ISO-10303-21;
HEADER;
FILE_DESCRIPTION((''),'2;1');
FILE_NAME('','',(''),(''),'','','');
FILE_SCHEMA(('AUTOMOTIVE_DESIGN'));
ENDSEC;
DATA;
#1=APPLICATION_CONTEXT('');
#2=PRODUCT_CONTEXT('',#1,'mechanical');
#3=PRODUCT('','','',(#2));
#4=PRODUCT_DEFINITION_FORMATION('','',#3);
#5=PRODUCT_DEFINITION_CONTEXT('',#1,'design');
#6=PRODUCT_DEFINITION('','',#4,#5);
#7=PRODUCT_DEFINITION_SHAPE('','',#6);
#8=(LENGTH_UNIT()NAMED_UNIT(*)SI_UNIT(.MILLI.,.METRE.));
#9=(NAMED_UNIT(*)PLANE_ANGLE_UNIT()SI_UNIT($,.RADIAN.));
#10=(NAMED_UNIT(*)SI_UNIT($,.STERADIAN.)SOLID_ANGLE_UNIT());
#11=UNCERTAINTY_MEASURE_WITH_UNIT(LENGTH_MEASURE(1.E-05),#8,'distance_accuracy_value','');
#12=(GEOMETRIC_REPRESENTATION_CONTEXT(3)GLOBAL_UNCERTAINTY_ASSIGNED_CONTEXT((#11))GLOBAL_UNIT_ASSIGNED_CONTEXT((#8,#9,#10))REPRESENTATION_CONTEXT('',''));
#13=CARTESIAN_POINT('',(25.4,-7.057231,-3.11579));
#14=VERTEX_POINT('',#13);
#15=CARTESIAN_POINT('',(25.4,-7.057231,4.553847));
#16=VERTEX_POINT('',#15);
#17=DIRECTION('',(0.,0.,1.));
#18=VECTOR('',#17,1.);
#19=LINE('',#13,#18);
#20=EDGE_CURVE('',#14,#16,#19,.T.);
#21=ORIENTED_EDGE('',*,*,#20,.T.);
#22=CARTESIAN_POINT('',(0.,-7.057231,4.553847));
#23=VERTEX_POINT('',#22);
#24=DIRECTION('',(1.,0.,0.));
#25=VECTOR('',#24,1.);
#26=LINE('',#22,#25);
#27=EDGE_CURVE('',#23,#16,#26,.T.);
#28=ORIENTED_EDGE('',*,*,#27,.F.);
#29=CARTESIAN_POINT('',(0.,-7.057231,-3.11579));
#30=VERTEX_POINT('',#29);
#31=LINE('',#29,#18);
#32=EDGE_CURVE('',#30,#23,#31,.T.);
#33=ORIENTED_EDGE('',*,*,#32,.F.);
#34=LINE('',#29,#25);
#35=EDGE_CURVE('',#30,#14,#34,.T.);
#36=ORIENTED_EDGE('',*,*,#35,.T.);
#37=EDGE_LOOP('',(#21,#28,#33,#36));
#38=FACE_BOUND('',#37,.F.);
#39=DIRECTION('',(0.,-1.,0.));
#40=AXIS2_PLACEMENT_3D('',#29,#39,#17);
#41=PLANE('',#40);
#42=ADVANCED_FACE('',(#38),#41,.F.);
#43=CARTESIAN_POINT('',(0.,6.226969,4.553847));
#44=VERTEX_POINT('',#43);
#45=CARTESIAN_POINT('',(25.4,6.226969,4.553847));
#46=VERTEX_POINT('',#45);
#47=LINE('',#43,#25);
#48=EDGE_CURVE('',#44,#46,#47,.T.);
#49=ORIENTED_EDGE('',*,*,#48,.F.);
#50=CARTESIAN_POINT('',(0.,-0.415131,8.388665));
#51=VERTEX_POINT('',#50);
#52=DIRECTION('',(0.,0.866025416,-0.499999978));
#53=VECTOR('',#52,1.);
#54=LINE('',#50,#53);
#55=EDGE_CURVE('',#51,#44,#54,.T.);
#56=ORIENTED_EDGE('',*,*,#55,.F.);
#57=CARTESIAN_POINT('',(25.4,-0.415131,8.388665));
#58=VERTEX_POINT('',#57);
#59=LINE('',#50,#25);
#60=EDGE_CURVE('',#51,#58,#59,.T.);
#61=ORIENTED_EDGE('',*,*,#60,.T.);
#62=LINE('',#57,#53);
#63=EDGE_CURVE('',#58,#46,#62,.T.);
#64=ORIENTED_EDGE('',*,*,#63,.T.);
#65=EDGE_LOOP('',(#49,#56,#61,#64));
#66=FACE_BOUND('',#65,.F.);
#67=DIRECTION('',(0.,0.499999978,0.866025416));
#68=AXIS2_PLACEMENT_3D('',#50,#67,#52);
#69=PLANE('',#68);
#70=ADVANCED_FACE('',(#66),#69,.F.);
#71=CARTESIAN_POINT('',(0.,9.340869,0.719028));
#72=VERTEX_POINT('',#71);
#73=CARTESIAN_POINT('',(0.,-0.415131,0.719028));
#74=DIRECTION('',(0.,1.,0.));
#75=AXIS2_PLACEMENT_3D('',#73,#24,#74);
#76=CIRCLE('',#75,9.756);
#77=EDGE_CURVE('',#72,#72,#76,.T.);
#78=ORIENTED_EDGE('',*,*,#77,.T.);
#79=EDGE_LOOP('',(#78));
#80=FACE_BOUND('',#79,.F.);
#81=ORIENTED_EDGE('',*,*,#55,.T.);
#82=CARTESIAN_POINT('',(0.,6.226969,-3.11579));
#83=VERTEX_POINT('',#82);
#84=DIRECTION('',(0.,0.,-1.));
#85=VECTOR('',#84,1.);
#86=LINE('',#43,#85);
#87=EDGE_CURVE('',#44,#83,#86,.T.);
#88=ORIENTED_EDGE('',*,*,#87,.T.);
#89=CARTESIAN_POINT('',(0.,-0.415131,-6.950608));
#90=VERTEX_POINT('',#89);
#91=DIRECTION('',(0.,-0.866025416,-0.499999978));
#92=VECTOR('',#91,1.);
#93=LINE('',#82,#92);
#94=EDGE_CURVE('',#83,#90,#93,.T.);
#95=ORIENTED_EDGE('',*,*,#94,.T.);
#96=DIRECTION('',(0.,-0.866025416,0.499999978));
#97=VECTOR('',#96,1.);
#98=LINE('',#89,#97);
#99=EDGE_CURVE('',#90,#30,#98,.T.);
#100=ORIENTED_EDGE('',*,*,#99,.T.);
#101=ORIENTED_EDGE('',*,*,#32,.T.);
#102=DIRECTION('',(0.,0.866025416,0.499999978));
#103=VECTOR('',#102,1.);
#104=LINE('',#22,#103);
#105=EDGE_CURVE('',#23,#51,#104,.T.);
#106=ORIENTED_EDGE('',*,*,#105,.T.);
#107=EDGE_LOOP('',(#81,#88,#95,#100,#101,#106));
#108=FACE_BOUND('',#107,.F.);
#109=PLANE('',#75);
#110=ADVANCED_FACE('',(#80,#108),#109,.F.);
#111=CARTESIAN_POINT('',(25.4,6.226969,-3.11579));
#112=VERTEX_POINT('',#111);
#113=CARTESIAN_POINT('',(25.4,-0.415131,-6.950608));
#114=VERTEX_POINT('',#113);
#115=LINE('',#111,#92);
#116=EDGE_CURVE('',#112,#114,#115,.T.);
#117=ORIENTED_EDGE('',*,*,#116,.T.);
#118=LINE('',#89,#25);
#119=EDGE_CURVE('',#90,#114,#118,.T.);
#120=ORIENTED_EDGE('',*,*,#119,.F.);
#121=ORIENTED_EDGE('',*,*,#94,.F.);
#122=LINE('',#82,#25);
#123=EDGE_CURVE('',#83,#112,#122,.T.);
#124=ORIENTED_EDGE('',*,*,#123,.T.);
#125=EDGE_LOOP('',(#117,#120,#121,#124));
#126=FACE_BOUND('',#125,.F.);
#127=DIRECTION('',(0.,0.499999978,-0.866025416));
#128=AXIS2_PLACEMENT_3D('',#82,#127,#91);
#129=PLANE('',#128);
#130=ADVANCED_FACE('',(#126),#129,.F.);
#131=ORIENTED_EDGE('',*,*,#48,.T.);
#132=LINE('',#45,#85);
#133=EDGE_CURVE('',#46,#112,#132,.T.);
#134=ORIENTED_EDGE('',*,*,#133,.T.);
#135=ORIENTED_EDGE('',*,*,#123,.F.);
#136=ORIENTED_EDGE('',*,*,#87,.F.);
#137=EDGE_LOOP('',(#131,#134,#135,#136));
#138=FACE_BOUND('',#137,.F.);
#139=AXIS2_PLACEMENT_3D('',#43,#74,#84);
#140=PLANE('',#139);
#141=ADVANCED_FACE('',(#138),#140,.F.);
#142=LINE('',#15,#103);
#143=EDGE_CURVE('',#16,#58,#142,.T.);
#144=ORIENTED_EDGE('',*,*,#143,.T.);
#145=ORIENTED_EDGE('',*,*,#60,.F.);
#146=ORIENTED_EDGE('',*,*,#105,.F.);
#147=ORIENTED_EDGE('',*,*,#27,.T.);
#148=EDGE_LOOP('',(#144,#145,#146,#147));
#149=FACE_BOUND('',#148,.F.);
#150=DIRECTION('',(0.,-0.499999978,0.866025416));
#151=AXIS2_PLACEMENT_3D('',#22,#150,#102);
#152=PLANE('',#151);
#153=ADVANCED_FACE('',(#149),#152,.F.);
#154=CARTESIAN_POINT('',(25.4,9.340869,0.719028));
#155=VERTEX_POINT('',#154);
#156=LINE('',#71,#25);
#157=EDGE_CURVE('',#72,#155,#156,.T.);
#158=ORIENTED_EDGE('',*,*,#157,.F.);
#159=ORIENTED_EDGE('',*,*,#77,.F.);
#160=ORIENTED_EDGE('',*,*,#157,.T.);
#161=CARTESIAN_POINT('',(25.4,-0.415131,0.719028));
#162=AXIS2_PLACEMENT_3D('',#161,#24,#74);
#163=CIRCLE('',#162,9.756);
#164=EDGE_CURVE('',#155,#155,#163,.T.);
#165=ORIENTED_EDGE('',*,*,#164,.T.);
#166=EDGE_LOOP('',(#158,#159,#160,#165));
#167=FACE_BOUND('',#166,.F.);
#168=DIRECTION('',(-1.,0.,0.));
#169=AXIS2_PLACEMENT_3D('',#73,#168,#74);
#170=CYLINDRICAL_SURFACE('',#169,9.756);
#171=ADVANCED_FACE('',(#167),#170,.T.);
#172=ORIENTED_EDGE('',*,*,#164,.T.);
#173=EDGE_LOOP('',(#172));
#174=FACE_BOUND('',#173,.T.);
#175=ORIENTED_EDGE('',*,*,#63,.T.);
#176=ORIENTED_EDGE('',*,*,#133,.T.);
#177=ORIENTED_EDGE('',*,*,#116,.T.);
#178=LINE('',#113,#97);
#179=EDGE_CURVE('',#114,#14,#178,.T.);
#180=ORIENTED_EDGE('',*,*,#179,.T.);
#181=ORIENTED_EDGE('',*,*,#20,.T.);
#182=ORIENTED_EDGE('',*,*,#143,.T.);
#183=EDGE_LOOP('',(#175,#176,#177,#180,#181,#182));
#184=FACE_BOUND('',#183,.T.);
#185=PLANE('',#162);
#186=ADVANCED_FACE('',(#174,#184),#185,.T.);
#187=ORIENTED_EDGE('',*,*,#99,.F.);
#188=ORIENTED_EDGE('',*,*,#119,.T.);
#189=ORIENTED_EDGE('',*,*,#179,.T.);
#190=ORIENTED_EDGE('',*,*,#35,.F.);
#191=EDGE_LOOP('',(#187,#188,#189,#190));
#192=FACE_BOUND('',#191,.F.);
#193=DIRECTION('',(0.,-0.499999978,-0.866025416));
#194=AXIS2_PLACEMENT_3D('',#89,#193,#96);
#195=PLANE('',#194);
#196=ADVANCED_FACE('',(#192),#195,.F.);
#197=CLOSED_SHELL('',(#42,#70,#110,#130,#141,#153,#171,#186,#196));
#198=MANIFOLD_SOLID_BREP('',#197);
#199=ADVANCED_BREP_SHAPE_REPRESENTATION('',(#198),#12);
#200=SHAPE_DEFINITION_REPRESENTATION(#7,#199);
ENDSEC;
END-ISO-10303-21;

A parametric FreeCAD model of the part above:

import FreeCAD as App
import Part
import Sketcher

V = App.Vector
Q = App.Units.Quantity

doc = App.newDocument("Part")
body = doc.addObject("PartDesign::Body", "Body")

# Sketch on YZ plane
sketch1 = body.newObject("Sketcher::SketchObject", "Sketch")
sketch1.AttachmentSupport = (doc.getObject("YZ_Plane"), [""])
sketch1.MapMode = "FlatFace"
sketch1.addGeometry([
    Part.Circle(V(0, 1, 0), V(0, 0, 1), 10),  # 0
    Part.LineSegment(V(0, 8, 0), V(6, 5, 0)),  # 1
    Part.LineSegment(V(6, 5, 0), V(6, -3, 0)),  # 2
    Part.LineSegment(V(6, -3, 0), V(0, -7, 0)),  # 3
    Part.LineSegment(V(0, -7, 0), V(-7, -3, 0)),  # 4
    Part.LineSegment(V(-7, -3, 0), V(-7, 5, 0)),  # 5
    Part.LineSegment(V(-7, 5, 0), V(0, 8, 0)),  # 6
], False)
sketch1.addConstraint([
    Sketcher.Constraint("Coincident", 1, 2, 2, 1),
    Sketcher.Constraint("Coincident", 2, 2, 3, 1),
    Sketcher.Constraint("Coincident", 3, 2, 4, 1),
    Sketcher.Constraint("Coincident", 4, 2, 5, 1),
    Sketcher.Constraint("Coincident", 5, 2, 6, 1),
    Sketcher.Constraint("Coincident", 6, 2, 1, 1),
    Sketcher.Constraint("Vertical", 2),
    Sketcher.Constraint("Vertical", 5),
    Sketcher.Constraint("Parallel", 1, 4),
    Sketcher.Constraint("Parallel", 3, 6),
    Sketcher.Constraint("Horizontal", 2, 2, 4, 2),
    Sketcher.Constraint("Horizontal", 1, 2, 5, 2),
    Sketcher.Constraint("Vertical", 0, 3, 3, 2),
    Sketcher.Constraint("Vertical", 3, 2, 6, 2),
    Sketcher.Constraint("Angle", 1, Q("-29.999999 deg")),
    Sketcher.Constraint("Diameter", 0, Q("19.512 mm")),
    Sketcher.Constraint("DistanceX", 4, 2, 2, 2, Q("0.523 in")),
    Sketcher.Constraint("DistanceY", 2, 2, 2, 1, Q("7.669637 mm")),
    Sketcher.Constraint("DistanceX", 0, 3, -1, 1, Q("0.415131 mm")),
    Sketcher.Constraint("DistanceY", -1, 1, 0, 3, Q("0.719028 mm")),
    Sketcher.Constraint("DistanceY", 2, 2, -1, 1, Q("3.11579 mm")),
])
pad1 = body.newObject("PartDesign::Pad", "Pad")
pad1.Profile = sketch1
pad1.Length = Q("1 in")

doc.recompute()
